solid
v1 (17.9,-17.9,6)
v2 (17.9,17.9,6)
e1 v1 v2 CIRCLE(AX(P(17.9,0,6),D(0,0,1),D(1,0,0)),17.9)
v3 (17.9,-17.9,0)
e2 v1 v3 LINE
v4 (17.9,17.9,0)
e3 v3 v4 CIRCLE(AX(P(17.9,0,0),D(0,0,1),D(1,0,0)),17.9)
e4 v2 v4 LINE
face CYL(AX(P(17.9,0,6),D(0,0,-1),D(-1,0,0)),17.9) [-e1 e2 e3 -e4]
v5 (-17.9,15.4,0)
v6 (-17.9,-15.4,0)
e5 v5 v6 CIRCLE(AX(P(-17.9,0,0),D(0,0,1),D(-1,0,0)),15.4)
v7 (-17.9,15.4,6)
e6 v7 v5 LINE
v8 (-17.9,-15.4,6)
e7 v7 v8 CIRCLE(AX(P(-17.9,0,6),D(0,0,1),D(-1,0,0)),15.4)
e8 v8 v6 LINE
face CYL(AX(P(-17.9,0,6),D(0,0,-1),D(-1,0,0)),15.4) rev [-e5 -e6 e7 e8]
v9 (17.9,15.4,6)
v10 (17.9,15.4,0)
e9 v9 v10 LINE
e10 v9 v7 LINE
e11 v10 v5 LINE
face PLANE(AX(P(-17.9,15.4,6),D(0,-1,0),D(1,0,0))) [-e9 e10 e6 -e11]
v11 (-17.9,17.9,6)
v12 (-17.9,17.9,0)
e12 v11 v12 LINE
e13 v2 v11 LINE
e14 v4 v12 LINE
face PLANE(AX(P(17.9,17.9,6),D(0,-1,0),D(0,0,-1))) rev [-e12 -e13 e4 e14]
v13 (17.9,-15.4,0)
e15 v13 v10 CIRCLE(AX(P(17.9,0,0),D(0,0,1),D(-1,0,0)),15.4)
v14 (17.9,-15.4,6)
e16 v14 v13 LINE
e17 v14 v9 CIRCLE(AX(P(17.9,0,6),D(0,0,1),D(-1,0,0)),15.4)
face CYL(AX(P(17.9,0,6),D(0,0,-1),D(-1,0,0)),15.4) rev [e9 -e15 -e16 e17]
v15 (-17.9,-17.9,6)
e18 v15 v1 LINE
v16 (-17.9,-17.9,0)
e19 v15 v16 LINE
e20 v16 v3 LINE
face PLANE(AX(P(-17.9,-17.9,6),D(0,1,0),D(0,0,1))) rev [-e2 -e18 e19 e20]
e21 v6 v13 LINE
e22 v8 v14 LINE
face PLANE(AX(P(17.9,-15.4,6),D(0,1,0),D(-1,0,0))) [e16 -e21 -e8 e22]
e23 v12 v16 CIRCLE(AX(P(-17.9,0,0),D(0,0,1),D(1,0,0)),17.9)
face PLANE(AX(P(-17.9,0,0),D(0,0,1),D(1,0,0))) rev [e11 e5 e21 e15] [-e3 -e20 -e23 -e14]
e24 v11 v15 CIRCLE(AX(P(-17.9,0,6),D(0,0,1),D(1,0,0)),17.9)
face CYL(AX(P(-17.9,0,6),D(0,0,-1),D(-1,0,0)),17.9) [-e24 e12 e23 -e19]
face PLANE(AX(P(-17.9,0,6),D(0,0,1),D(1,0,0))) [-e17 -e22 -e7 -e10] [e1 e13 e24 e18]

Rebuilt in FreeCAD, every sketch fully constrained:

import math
import FreeCAD as App
import Part
import Sketcher

V = App.Vector
Q = App.Units.Quantity

doc = App.newDocument("Part")
params = doc.addObject("Spreadsheet::Sheet", "Params")
for row, (alias, value) in enumerate([
    ("sketch1_radius", "17.9 mm"),
    ("sketch1_radius2", "15.4 mm"),
    ("sketch1_width", "35.8 mm"),
    ("pad1_length", "6 mm"),
], start=1):
    params.set(f"A{row}", alias)
    params.set(f"B{row}", "=" + value)
    params.setAlias(f"B{row}", alias)

body = doc.addObject("PartDesign::Body", "Body")

sketch1 = body.newObject("Sketcher::SketchObject", "Sketch")
sketch1.AttachmentSupport = (doc.getObject("XY_Plane"), [""])
sketch1.MapMode = "FlatFace"
sketch1.addGeometry(Part.LineSegment(V(-17.9, -17.9, 0), V(17.9, -17.9, 0)), False)
sketch1.addGeometry(Part.ArcOfCircle(Part.Circle(V(17.9, 0, 0), V(0, 0, 1), 17.9), math.radians(-90), math.radians(90)), False)
sketch1.addGeometry(Part.LineSegment(V(17.9, 17.9, 0), V(-17.9, 17.9, 0)), False)
sketch1.addGeometry(Part.ArcOfCircle(Part.Circle(V(-17.9, 0, 0), V(0, 0, 1), 17.9), math.radians(90), math.radians(270)), False)
sketch1.addGeometry(Part.ArcOfCircle(Part.Circle(V(17.9, 0, 0), V(0, 0, 1), 15.4), math.radians(-90), math.radians(90)), False)
sketch1.addGeometry(Part.LineSegment(V(17.9, -15.4, 0), V(-17.9, -15.4, 0)), False)
sketch1.addGeometry(Part.ArcOfCircle(Part.Circle(V(-17.9, 0, 0), V(0, 0, 1), 15.4), math.radians(90), math.radians(270)), False)
sketch1.addGeometry(Part.LineSegment(V(-17.9, 15.4, 0), V(17.9, 15.4, 0)), False)
sketch1.addConstraint(Sketcher.Constraint("Tangent", 0, 2, 1, 1))
sketch1.addConstraint(Sketcher.Constraint("Tangent", 1, 2, 2, 1))
sketch1.addConstraint(Sketcher.Constraint("Tangent", 2, 2, 3, 1))
sketch1.addConstraint(Sketcher.Constraint("Tangent", 3, 2, 0, 1))
sketch1.addConstraint(Sketcher.Constraint("Tangent", 4, 1, 5, 1))
sketch1.addConstraint(Sketcher.Constraint("Tangent", 5, 2, 6, 2))
sketch1.addConstraint(Sketcher.Constraint("Tangent", 6, 1, 7, 1))
sketch1.addConstraint(Sketcher.Constraint("Tangent", 7, 2, 4, 2))
sketch1.addConstraint(Sketcher.Constraint("Horizontal", 0))
sketch1.addConstraint(Sketcher.Constraint("Horizontal", 2))
sketch1.addConstraint(Sketcher.Constraint("Horizontal", 5))
sketch1.addConstraint(Sketcher.Constraint("Horizontal", 7))
sketch1.addConstraint(Sketcher.Constraint("Coincident", 4, 3, 1, 3))
sketch1.addConstraint(Sketcher.Constraint("Symmetric", 1, 3, 3, 3, -1, 1))
sketch1.addConstraint(Sketcher.Constraint("Vertical", 6, 3, 2, 2))
sketch1.addConstraint(Sketcher.Constraint("Radius", 1, Q("17.9 mm")))
sketch1.addConstraint(Sketcher.Constraint("Radius", 4, Q("15.4 mm")))
sketch1.addConstraint(Sketcher.Constraint("DistanceX", 0, 1, 0, 2, Q("35.8 mm")))
sketch1.setExpression("Constraints[15]", "Params.sketch1_radius")
sketch1.setExpression("Constraints[16]", "Params.sketch1_radius2")
sketch1.setExpression("Constraints[17]", "Params.sketch1_width")
pad1 = body.newObject("PartDesign::Pad", "Pad")
pad1.Profile = sketch1
pad1.setExpression("Length", "Params.pad1_length")

doc.recompute()
